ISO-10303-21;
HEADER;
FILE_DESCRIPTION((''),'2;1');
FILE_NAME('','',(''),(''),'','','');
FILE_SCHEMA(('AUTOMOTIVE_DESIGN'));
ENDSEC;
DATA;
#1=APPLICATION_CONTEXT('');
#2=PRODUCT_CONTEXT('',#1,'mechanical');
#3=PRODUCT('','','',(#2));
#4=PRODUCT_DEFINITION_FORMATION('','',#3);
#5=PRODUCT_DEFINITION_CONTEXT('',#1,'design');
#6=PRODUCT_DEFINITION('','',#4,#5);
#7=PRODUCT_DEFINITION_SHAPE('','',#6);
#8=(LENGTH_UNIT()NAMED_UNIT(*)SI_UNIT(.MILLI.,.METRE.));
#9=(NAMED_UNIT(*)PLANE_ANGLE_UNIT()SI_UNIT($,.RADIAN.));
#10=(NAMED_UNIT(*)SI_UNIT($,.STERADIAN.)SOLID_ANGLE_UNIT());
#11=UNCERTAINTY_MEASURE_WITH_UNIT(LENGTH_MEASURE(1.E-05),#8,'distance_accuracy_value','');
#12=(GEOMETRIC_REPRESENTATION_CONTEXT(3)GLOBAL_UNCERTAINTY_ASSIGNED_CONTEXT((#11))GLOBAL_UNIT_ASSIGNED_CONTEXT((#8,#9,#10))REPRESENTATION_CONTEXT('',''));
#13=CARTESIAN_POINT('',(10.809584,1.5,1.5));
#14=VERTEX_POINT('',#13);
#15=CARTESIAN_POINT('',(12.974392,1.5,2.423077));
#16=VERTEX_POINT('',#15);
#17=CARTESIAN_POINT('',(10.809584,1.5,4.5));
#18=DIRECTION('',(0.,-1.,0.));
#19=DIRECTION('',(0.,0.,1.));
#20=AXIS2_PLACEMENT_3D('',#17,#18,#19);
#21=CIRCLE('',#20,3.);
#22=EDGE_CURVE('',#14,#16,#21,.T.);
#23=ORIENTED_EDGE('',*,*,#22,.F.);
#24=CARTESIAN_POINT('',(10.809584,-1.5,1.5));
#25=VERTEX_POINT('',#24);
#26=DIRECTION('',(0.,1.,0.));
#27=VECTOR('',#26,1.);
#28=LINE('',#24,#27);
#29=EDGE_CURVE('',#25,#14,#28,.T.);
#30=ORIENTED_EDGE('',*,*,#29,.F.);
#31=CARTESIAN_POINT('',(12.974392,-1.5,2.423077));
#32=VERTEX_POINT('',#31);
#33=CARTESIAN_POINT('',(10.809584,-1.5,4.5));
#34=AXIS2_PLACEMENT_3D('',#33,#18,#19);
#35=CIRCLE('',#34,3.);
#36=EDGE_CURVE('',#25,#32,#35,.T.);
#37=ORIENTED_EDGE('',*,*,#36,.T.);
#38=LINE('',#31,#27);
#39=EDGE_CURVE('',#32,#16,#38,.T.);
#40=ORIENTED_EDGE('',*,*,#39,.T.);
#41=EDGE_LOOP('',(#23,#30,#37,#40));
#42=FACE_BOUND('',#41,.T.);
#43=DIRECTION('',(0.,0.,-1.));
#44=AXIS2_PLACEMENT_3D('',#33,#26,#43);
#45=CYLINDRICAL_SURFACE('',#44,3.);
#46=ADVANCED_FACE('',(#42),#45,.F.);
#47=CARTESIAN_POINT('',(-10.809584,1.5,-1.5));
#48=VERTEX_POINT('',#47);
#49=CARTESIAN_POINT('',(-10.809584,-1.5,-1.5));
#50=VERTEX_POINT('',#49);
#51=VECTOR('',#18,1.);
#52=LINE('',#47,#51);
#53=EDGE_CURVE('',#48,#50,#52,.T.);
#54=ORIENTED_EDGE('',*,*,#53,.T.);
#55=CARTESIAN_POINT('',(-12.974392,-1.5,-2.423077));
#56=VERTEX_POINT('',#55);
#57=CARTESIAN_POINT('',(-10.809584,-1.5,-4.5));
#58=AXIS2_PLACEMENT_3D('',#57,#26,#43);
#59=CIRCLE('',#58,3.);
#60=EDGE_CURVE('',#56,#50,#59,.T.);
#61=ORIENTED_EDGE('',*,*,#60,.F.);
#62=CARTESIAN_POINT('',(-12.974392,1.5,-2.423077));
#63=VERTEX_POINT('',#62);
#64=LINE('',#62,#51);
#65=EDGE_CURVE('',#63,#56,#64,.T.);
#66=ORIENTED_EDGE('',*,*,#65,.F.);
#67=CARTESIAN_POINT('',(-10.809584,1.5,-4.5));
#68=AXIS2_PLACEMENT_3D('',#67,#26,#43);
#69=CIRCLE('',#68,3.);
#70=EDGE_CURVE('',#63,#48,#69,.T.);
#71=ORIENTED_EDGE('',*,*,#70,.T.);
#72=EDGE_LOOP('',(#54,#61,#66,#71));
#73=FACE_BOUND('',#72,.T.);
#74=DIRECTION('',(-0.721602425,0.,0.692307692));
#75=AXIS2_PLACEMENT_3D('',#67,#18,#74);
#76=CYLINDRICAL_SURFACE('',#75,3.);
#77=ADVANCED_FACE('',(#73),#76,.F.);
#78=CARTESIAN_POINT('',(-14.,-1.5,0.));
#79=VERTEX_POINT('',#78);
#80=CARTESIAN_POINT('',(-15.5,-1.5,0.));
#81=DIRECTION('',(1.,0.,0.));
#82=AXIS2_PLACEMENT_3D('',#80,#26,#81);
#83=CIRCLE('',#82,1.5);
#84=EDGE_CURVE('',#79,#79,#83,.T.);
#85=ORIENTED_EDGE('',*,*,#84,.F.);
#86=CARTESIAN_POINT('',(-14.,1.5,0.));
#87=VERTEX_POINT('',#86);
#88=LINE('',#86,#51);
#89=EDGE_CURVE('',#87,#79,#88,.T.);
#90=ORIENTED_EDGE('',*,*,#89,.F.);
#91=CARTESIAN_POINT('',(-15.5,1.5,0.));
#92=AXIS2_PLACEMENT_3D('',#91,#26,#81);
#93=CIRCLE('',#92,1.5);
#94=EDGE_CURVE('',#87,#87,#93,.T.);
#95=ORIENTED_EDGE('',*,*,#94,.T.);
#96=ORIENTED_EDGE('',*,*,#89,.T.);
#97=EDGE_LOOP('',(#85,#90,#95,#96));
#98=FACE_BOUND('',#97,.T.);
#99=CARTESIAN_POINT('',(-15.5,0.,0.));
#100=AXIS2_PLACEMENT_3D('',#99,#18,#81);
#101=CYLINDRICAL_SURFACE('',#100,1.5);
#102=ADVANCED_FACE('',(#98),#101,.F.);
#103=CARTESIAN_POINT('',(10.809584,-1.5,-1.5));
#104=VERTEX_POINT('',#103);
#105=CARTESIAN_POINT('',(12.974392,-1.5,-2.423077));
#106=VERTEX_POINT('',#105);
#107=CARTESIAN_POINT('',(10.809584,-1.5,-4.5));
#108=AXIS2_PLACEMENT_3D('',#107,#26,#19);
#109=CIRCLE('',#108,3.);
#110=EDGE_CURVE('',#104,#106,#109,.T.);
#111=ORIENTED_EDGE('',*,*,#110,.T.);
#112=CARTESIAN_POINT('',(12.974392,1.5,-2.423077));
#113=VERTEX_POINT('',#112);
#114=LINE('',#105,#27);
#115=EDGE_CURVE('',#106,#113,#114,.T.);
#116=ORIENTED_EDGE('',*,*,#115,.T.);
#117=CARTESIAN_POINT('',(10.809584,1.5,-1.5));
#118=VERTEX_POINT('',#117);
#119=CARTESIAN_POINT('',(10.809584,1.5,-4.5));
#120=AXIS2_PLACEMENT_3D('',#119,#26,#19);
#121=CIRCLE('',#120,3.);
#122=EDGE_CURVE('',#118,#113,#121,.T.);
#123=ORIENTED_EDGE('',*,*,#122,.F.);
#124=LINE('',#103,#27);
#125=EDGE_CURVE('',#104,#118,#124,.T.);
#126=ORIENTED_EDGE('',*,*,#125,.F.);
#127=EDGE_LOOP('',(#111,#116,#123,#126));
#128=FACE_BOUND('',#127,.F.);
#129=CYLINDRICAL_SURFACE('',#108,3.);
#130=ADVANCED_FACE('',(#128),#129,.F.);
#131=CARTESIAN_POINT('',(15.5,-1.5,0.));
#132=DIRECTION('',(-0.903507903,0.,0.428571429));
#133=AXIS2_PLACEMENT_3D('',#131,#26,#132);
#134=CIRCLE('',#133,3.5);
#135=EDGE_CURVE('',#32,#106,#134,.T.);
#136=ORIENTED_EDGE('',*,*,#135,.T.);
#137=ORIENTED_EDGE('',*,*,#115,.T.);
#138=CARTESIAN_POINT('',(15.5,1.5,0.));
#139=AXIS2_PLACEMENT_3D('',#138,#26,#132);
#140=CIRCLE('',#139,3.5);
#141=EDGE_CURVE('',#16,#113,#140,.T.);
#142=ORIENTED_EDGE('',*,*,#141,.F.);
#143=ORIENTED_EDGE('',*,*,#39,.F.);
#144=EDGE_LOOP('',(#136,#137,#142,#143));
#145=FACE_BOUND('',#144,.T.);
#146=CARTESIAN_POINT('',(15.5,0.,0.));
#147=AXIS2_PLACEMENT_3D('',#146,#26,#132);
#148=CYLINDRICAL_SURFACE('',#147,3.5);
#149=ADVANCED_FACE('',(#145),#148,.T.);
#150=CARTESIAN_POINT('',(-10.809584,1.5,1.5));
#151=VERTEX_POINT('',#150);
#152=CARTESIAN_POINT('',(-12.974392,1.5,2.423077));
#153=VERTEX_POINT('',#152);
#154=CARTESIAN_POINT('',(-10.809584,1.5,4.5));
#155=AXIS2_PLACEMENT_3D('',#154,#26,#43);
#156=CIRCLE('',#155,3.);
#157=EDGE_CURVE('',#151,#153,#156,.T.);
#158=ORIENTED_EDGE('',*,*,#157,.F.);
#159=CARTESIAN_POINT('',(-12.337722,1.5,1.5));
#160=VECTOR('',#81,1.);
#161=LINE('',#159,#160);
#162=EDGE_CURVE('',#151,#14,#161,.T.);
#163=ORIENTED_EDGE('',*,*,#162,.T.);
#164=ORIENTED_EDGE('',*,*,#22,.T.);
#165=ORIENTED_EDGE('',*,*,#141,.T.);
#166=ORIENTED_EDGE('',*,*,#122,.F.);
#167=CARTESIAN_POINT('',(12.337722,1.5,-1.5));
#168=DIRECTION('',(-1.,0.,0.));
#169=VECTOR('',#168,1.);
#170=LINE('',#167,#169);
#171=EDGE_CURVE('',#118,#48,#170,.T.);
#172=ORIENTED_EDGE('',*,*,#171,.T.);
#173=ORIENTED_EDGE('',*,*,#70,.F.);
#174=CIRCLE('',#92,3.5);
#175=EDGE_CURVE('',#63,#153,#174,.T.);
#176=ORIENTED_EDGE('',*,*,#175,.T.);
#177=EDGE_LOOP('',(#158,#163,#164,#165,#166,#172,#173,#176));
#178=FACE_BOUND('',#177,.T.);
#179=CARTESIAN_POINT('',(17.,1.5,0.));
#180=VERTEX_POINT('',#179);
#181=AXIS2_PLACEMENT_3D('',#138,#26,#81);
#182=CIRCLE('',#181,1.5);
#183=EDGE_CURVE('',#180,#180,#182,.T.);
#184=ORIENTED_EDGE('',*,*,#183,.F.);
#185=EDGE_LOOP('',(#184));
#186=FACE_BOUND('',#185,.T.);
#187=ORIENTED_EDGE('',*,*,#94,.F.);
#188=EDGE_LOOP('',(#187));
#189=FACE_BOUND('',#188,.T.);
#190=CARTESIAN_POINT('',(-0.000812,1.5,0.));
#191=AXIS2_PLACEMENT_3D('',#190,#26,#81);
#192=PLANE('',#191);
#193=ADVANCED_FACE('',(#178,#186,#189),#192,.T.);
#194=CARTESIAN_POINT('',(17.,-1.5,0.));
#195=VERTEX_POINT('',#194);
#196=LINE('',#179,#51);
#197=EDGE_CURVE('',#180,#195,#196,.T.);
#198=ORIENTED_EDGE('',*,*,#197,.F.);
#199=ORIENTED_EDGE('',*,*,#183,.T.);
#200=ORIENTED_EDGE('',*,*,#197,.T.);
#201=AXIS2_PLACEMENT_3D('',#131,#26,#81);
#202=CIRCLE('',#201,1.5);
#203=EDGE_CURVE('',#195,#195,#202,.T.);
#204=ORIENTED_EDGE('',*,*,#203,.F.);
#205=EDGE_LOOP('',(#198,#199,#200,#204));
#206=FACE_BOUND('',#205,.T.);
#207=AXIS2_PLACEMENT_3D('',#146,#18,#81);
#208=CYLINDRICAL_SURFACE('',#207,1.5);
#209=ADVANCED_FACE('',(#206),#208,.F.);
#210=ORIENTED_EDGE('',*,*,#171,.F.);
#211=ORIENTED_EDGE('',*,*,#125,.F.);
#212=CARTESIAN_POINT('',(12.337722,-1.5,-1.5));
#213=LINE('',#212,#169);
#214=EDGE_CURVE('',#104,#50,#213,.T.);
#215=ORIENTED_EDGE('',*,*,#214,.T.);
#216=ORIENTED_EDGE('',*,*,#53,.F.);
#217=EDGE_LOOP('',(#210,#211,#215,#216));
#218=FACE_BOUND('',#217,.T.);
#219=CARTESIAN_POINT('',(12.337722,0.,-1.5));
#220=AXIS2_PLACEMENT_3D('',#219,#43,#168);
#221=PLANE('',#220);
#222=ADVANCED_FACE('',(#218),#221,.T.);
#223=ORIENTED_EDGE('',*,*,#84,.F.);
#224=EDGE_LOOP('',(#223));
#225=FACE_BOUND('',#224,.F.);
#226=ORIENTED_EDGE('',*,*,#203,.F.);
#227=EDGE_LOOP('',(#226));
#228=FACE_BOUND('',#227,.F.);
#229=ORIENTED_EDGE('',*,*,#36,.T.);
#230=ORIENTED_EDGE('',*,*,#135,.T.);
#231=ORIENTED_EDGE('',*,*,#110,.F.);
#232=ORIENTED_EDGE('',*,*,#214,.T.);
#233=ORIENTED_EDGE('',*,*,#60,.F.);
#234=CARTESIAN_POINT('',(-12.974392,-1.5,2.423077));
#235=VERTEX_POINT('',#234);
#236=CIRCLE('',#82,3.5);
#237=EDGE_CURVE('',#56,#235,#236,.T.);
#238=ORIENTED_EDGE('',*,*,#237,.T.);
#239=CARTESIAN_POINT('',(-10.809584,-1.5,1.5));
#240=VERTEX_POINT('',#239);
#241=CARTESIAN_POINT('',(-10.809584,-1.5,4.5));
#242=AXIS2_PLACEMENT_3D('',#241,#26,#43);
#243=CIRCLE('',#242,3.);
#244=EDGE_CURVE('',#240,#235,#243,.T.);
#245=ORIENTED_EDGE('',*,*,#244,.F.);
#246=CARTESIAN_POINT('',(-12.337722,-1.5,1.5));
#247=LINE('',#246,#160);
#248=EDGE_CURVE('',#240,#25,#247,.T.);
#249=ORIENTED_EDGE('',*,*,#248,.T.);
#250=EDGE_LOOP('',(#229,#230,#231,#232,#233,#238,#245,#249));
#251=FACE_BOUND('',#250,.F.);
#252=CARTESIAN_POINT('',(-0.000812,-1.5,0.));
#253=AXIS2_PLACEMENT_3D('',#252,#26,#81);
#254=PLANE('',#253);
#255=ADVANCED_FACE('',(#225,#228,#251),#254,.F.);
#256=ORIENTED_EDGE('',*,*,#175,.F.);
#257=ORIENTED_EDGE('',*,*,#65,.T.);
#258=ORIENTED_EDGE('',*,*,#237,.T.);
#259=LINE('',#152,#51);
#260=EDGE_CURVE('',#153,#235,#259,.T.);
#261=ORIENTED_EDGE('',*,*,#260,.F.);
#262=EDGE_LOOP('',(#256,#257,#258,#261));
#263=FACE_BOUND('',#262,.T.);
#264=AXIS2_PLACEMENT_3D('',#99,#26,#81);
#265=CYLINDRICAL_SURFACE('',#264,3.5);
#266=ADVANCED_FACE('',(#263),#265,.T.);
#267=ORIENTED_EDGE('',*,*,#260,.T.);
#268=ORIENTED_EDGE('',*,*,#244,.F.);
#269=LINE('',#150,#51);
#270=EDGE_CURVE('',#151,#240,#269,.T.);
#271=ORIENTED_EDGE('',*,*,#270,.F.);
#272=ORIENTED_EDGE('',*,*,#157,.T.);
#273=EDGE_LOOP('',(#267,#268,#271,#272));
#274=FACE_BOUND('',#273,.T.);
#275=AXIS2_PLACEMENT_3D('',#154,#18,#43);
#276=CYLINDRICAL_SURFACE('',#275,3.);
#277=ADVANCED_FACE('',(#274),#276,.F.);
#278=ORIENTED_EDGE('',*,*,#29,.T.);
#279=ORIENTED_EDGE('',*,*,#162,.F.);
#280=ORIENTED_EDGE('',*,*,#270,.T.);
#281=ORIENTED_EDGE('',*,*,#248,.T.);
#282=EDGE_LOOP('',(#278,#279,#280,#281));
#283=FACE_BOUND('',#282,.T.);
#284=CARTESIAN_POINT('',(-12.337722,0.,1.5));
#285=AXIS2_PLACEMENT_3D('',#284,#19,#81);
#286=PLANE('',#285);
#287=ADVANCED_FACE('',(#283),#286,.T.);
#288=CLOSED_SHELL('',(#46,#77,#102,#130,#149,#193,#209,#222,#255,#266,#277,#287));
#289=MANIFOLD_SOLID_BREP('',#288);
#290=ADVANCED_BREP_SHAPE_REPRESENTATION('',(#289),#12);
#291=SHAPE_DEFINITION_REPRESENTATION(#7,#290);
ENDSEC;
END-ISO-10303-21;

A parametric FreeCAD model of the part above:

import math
import FreeCAD as App
import Part
import Sketcher
Q = App.Units.Quantity


def edges_at(feature, points):
    """Names of the edges that pass closest to the given points."""
    edges = feature.Shape.Edges
    near = lambda p: min(range(len(edges)), key=lambda i: edges[i].distToShape(Part.Vertex(*p))[0])
    return sorted({f"Edge{near(p) + 1}" for p in points})

doc = App.newDocument("Part")
body = doc.addObject("PartDesign::Body", "Body")

# Sketch on XZ plane
sketch1 = body.newObject("Sketcher::SketchObject", "Sketch")
sketch1.AttachmentSupport = (doc.getObject("XZ_Plane"), [""])
sketch1.MapMode = "FlatFace"
sketch1.addGeometry([
    Part.LineSegment(App.Vector(-12.337722, 1.5, 0), App.Vector(12.337722, 1.5, 0)),  # 0
    Part.ArcOfCircle(Part.Circle(App.Vector(15.5, 0, 0), App.Vector(0, 0, 1), 3.5), math.radians(-154.623066), math.radians(154.623066)),  # 1
    Part.LineSegment(App.Vector(12.337722, -1.5, 0), App.Vector(-12.337722, -1.5, 0)),  # 2
    Part.ArcOfCircle(Part.Circle(App.Vector(-15.5, 0, 0), App.Vector(0, 0, 1), 3.5), math.radians(25.376934), math.radians(334.623066)),  # 3
    Part.Circle(App.Vector(-15.5, 0, 0), App.Vector(0, 0, 1), 1.5),  # 4
    Part.Circle(App.Vector(15.5, 0, 0), App.Vector(0, 0, 1), 1.5),  # 5
], False)
sketch1.addConstraint([
    Sketcher.Constraint("Coincident", 0, 2, 1, 2),
    Sketcher.Constraint("Coincident", 1, 1, 2, 1),
    Sketcher.Constraint("Coincident", 2, 2, 3, 2),
    Sketcher.Constraint("Coincident", 3, 1, 0, 1),
    Sketcher.Constraint("Horizontal", 0),
    Sketcher.Constraint("Horizontal", 2),
    Sketcher.Constraint("Coincident", 4, 3, 3, 3),
    Sketcher.Constraint("Coincident", 5, 3, 1, 3),
    Sketcher.Constraint("Equal", 1, 3),
    Sketcher.Constraint("Equal", 4, 5),
    Sketcher.Constraint("Symmetric", 1, 3, 3, 3, -1, 1),
    Sketcher.Constraint("Symmetric", 0, 2, 1, 1, -1),
    Sketcher.Constraint("Diameter", 4, Q("3 mm")),
    Sketcher.Constraint("Radius", 1, Q("3.5 mm")),
    Sketcher.Constraint("DistanceX", 3, 3, 1, 3, Q("31 mm")),
    Sketcher.Constraint("DistanceY", 1, 1, 0, 2, Q("3 mm")),
])
pad1 = body.newObject("PartDesign::Pad", "Pad")
pad1.Profile = sketch1
pad1.Length = 3
pad1.Midplane = True
doc.recompute()

fillet = body.newObject("PartDesign::Fillet", "Fillet")
fillet.Base = (pad1, edges_at(pad1, [
    (12.338, 0, -1.5),
    (12.338, 0, 1.5),
    (-12.338, 0, 1.5),
    (-12.338, 0, -1.5),
]))
fillet.Radius = 3

doc.recompute()
